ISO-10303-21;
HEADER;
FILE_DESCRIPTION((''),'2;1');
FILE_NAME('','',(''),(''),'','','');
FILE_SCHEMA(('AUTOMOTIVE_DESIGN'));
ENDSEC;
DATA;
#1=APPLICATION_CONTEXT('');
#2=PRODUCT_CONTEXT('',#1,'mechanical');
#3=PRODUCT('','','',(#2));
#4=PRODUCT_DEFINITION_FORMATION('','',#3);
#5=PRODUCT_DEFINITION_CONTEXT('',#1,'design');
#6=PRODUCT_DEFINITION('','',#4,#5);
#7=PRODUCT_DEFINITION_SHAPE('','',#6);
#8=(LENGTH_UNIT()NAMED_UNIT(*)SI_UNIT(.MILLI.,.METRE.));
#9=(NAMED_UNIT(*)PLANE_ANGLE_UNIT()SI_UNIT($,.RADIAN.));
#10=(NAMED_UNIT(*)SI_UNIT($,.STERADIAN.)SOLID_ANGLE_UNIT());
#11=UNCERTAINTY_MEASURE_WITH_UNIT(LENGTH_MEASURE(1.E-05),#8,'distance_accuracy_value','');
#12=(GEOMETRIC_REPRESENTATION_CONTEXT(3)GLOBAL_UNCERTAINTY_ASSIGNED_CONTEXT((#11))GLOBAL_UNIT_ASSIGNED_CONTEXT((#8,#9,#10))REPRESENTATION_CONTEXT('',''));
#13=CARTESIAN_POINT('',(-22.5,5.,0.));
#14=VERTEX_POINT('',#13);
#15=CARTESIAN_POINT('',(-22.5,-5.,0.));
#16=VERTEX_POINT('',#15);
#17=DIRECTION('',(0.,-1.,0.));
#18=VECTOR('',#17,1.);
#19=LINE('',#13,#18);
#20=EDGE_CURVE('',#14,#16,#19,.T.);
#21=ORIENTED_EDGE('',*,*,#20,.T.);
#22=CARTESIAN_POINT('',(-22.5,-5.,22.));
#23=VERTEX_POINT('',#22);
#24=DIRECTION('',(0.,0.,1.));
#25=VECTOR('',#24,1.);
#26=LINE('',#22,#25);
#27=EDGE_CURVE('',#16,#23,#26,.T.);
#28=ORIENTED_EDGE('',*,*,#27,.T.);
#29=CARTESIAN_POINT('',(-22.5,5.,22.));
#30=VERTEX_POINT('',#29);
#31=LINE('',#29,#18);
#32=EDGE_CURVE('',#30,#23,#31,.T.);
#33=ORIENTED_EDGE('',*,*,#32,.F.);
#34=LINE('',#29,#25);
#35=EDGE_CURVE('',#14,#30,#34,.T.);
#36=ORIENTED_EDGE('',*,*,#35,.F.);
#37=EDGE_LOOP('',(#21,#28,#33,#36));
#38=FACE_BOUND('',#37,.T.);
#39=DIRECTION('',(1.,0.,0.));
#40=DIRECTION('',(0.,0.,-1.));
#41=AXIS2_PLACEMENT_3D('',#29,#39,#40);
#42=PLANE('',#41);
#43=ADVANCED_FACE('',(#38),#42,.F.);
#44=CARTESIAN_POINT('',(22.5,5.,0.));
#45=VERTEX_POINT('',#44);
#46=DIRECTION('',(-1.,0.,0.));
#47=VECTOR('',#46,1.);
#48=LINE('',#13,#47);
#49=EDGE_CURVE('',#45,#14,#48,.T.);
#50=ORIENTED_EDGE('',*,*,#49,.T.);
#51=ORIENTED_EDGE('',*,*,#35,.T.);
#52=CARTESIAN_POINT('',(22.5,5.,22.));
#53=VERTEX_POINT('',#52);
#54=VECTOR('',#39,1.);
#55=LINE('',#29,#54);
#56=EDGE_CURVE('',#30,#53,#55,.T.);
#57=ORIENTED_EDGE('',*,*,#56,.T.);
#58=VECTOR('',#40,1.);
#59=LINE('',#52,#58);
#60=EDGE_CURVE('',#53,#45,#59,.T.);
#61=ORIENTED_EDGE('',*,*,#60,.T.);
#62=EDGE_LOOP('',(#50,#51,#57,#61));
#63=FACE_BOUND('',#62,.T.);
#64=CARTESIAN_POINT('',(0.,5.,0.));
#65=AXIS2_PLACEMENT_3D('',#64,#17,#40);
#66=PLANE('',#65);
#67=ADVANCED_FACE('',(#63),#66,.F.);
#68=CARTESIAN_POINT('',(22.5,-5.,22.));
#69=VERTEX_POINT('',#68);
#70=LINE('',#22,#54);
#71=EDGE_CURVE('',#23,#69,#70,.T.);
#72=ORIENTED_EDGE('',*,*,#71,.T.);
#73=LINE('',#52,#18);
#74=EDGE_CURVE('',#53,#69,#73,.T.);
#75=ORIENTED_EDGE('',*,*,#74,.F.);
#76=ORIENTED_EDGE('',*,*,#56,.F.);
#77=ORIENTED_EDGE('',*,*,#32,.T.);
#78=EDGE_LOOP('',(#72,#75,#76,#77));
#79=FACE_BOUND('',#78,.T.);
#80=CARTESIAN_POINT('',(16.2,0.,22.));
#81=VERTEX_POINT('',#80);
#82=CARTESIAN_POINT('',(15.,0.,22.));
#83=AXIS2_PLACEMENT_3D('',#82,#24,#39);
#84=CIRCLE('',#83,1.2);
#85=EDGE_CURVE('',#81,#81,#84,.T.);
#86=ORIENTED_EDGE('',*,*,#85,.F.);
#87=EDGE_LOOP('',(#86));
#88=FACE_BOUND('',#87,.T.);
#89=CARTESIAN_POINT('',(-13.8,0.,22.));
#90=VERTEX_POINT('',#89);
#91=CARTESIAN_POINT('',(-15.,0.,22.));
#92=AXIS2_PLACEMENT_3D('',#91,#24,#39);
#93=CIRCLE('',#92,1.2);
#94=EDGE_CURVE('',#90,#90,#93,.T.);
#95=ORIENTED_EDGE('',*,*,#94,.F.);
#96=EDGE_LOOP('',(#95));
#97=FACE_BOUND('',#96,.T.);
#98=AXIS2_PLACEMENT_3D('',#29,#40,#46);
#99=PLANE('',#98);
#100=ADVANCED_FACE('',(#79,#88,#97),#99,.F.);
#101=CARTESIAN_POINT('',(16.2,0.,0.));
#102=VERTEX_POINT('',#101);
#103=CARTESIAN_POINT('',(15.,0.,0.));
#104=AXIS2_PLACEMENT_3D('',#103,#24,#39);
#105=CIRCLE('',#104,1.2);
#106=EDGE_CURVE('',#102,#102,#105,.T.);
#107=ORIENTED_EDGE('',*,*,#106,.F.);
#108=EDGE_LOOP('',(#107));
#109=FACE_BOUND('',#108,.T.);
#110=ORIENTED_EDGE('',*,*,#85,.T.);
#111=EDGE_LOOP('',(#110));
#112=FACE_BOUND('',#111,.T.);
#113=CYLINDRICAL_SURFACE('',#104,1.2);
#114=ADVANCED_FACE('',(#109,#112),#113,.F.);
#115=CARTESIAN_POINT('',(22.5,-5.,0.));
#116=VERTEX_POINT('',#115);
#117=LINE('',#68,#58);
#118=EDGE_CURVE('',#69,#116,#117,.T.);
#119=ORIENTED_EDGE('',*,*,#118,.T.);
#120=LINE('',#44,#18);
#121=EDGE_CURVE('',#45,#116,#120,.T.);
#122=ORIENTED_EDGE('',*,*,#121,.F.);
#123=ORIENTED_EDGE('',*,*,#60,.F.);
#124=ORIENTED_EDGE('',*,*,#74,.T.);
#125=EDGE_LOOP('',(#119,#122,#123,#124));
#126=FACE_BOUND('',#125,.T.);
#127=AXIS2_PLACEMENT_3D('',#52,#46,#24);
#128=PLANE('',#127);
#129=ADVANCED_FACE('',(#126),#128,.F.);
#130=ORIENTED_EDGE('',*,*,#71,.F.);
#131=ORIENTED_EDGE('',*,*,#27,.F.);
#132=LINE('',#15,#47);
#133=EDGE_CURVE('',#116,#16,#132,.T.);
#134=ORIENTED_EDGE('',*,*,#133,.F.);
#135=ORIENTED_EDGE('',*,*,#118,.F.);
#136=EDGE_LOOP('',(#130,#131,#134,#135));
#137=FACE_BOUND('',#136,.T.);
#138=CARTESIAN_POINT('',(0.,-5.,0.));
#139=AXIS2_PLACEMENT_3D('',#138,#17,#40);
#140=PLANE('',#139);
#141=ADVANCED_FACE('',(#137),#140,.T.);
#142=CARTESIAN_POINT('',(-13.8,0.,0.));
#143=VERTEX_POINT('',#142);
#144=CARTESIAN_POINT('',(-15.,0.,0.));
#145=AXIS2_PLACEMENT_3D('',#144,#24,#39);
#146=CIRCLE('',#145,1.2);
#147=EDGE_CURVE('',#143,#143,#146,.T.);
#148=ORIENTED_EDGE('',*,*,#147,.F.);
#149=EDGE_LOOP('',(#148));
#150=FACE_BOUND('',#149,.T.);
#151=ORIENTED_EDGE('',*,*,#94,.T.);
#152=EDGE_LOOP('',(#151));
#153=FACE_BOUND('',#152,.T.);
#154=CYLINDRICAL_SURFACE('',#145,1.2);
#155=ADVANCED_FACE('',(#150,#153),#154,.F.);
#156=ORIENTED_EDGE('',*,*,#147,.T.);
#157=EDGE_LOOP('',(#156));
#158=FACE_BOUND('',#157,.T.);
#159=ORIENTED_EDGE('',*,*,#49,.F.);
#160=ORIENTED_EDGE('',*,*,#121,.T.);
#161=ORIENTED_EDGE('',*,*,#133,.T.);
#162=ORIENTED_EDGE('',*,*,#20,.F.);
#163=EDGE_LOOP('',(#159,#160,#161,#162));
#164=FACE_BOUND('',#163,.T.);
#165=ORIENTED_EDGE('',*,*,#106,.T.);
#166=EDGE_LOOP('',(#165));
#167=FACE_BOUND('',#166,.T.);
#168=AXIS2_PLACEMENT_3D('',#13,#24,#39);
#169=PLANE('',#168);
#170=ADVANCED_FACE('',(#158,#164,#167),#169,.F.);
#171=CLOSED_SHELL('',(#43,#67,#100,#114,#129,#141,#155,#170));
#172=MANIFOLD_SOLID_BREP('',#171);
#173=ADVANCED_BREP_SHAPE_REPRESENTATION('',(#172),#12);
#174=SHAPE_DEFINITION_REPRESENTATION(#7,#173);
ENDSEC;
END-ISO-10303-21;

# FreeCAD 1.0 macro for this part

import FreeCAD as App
import Part
import Sketcher
from FreeCAD import Vector
Q = App.Units.Quantity


def add_polygon(sketch, points):
    """Adds a closed chain of lines whose ends are joined by coincident constraints."""
    first, n = sketch.GeometryCount, len(points)
    for a, b in zip(points, points[1:] + points[:1]):
        sketch.addGeometry(Part.LineSegment(App.Vector(*a, 0), App.Vector(*b, 0)), False)
    for i in range(n):
        sketch.addConstraint(Sketcher.Constraint("Coincident", first + i, 2, first + (i + 1) % n, 1))

doc = App.newDocument("Part")
body = doc.addObject("PartDesign::Body", "Body")

# Sketch on XZ plane
sketch1 = doc.addObject("Sketcher::SketchObject", "Sketch")
body.addObject(sketch1)
sketch1.AttachmentSupport = (doc.XZ_Plane, [""])
sketch1.MapMode = "FlatFace"
add_polygon(sketch1, [(-22, 0), (-22, 22), (22, 22), (22, 0)])  # lines 0-3
sketch1.addConstraint([
    Sketcher.Constraint("Vertical", 0),
    Sketcher.Constraint("Horizontal", 1),
    Sketcher.Constraint("Vertical", 2),
    Sketcher.Constraint("Horizontal", 3),
    Sketcher.Constraint("Symmetric", 2, 2, 3, 2, -1, 1),
    Sketcher.Constraint("DistanceX", 1, 1, 1, 2, Q("45 mm")),
    Sketcher.Constraint("DistanceY", 0, 1, 0, 2, Q("22 mm")),
])
pad1 = doc.addObject("PartDesign::Pad", "Pad")
body.addObject(pad1)
pad1.Profile = sketch1
pad1.Length = 10
pad1.Midplane = True

# Sketch on XY plane
sketch2 = doc.addObject("Sketcher::SketchObject", "Sketch001")
body.addObject(sketch2)
sketch2.AttachmentSupport = (doc.XY_Plane, [""])
sketch2.MapMode = "FlatFace"
sketch2.AttachmentOffset = App.Placement(Vector(0, 0, 22), App.Rotation())
sketch2.addGeometry([
    Part.Circle(Vector(-15, 0, 0), Vector(0, 0, 1), 1.2),
    Part.Circle(Vector(15, 0, 0), Vector(0, 0, 1), 1.2),
], False)
sketch2.addConstraint([
    Sketcher.Constraint("Equal", 0, 1),
    Sketcher.Constraint("Symmetric", 0, 3, 1, 3, -1, 1),
    Sketcher.Constraint("PointOnObject", 0, 3, -1),
    Sketcher.Constraint("Diameter", 0, Q("2.4 mm")),
    Sketcher.Constraint("DistanceX", 0, 3, -1, 1, Q("15 mm")),
])
pocket1 = doc.addObject("PartDesign::Pocket", "Pocket")
body.addObject(pocket1)
pocket1.Profile = sketch2
pocket1.Type = "ThroughAll"

doc.recompute()
